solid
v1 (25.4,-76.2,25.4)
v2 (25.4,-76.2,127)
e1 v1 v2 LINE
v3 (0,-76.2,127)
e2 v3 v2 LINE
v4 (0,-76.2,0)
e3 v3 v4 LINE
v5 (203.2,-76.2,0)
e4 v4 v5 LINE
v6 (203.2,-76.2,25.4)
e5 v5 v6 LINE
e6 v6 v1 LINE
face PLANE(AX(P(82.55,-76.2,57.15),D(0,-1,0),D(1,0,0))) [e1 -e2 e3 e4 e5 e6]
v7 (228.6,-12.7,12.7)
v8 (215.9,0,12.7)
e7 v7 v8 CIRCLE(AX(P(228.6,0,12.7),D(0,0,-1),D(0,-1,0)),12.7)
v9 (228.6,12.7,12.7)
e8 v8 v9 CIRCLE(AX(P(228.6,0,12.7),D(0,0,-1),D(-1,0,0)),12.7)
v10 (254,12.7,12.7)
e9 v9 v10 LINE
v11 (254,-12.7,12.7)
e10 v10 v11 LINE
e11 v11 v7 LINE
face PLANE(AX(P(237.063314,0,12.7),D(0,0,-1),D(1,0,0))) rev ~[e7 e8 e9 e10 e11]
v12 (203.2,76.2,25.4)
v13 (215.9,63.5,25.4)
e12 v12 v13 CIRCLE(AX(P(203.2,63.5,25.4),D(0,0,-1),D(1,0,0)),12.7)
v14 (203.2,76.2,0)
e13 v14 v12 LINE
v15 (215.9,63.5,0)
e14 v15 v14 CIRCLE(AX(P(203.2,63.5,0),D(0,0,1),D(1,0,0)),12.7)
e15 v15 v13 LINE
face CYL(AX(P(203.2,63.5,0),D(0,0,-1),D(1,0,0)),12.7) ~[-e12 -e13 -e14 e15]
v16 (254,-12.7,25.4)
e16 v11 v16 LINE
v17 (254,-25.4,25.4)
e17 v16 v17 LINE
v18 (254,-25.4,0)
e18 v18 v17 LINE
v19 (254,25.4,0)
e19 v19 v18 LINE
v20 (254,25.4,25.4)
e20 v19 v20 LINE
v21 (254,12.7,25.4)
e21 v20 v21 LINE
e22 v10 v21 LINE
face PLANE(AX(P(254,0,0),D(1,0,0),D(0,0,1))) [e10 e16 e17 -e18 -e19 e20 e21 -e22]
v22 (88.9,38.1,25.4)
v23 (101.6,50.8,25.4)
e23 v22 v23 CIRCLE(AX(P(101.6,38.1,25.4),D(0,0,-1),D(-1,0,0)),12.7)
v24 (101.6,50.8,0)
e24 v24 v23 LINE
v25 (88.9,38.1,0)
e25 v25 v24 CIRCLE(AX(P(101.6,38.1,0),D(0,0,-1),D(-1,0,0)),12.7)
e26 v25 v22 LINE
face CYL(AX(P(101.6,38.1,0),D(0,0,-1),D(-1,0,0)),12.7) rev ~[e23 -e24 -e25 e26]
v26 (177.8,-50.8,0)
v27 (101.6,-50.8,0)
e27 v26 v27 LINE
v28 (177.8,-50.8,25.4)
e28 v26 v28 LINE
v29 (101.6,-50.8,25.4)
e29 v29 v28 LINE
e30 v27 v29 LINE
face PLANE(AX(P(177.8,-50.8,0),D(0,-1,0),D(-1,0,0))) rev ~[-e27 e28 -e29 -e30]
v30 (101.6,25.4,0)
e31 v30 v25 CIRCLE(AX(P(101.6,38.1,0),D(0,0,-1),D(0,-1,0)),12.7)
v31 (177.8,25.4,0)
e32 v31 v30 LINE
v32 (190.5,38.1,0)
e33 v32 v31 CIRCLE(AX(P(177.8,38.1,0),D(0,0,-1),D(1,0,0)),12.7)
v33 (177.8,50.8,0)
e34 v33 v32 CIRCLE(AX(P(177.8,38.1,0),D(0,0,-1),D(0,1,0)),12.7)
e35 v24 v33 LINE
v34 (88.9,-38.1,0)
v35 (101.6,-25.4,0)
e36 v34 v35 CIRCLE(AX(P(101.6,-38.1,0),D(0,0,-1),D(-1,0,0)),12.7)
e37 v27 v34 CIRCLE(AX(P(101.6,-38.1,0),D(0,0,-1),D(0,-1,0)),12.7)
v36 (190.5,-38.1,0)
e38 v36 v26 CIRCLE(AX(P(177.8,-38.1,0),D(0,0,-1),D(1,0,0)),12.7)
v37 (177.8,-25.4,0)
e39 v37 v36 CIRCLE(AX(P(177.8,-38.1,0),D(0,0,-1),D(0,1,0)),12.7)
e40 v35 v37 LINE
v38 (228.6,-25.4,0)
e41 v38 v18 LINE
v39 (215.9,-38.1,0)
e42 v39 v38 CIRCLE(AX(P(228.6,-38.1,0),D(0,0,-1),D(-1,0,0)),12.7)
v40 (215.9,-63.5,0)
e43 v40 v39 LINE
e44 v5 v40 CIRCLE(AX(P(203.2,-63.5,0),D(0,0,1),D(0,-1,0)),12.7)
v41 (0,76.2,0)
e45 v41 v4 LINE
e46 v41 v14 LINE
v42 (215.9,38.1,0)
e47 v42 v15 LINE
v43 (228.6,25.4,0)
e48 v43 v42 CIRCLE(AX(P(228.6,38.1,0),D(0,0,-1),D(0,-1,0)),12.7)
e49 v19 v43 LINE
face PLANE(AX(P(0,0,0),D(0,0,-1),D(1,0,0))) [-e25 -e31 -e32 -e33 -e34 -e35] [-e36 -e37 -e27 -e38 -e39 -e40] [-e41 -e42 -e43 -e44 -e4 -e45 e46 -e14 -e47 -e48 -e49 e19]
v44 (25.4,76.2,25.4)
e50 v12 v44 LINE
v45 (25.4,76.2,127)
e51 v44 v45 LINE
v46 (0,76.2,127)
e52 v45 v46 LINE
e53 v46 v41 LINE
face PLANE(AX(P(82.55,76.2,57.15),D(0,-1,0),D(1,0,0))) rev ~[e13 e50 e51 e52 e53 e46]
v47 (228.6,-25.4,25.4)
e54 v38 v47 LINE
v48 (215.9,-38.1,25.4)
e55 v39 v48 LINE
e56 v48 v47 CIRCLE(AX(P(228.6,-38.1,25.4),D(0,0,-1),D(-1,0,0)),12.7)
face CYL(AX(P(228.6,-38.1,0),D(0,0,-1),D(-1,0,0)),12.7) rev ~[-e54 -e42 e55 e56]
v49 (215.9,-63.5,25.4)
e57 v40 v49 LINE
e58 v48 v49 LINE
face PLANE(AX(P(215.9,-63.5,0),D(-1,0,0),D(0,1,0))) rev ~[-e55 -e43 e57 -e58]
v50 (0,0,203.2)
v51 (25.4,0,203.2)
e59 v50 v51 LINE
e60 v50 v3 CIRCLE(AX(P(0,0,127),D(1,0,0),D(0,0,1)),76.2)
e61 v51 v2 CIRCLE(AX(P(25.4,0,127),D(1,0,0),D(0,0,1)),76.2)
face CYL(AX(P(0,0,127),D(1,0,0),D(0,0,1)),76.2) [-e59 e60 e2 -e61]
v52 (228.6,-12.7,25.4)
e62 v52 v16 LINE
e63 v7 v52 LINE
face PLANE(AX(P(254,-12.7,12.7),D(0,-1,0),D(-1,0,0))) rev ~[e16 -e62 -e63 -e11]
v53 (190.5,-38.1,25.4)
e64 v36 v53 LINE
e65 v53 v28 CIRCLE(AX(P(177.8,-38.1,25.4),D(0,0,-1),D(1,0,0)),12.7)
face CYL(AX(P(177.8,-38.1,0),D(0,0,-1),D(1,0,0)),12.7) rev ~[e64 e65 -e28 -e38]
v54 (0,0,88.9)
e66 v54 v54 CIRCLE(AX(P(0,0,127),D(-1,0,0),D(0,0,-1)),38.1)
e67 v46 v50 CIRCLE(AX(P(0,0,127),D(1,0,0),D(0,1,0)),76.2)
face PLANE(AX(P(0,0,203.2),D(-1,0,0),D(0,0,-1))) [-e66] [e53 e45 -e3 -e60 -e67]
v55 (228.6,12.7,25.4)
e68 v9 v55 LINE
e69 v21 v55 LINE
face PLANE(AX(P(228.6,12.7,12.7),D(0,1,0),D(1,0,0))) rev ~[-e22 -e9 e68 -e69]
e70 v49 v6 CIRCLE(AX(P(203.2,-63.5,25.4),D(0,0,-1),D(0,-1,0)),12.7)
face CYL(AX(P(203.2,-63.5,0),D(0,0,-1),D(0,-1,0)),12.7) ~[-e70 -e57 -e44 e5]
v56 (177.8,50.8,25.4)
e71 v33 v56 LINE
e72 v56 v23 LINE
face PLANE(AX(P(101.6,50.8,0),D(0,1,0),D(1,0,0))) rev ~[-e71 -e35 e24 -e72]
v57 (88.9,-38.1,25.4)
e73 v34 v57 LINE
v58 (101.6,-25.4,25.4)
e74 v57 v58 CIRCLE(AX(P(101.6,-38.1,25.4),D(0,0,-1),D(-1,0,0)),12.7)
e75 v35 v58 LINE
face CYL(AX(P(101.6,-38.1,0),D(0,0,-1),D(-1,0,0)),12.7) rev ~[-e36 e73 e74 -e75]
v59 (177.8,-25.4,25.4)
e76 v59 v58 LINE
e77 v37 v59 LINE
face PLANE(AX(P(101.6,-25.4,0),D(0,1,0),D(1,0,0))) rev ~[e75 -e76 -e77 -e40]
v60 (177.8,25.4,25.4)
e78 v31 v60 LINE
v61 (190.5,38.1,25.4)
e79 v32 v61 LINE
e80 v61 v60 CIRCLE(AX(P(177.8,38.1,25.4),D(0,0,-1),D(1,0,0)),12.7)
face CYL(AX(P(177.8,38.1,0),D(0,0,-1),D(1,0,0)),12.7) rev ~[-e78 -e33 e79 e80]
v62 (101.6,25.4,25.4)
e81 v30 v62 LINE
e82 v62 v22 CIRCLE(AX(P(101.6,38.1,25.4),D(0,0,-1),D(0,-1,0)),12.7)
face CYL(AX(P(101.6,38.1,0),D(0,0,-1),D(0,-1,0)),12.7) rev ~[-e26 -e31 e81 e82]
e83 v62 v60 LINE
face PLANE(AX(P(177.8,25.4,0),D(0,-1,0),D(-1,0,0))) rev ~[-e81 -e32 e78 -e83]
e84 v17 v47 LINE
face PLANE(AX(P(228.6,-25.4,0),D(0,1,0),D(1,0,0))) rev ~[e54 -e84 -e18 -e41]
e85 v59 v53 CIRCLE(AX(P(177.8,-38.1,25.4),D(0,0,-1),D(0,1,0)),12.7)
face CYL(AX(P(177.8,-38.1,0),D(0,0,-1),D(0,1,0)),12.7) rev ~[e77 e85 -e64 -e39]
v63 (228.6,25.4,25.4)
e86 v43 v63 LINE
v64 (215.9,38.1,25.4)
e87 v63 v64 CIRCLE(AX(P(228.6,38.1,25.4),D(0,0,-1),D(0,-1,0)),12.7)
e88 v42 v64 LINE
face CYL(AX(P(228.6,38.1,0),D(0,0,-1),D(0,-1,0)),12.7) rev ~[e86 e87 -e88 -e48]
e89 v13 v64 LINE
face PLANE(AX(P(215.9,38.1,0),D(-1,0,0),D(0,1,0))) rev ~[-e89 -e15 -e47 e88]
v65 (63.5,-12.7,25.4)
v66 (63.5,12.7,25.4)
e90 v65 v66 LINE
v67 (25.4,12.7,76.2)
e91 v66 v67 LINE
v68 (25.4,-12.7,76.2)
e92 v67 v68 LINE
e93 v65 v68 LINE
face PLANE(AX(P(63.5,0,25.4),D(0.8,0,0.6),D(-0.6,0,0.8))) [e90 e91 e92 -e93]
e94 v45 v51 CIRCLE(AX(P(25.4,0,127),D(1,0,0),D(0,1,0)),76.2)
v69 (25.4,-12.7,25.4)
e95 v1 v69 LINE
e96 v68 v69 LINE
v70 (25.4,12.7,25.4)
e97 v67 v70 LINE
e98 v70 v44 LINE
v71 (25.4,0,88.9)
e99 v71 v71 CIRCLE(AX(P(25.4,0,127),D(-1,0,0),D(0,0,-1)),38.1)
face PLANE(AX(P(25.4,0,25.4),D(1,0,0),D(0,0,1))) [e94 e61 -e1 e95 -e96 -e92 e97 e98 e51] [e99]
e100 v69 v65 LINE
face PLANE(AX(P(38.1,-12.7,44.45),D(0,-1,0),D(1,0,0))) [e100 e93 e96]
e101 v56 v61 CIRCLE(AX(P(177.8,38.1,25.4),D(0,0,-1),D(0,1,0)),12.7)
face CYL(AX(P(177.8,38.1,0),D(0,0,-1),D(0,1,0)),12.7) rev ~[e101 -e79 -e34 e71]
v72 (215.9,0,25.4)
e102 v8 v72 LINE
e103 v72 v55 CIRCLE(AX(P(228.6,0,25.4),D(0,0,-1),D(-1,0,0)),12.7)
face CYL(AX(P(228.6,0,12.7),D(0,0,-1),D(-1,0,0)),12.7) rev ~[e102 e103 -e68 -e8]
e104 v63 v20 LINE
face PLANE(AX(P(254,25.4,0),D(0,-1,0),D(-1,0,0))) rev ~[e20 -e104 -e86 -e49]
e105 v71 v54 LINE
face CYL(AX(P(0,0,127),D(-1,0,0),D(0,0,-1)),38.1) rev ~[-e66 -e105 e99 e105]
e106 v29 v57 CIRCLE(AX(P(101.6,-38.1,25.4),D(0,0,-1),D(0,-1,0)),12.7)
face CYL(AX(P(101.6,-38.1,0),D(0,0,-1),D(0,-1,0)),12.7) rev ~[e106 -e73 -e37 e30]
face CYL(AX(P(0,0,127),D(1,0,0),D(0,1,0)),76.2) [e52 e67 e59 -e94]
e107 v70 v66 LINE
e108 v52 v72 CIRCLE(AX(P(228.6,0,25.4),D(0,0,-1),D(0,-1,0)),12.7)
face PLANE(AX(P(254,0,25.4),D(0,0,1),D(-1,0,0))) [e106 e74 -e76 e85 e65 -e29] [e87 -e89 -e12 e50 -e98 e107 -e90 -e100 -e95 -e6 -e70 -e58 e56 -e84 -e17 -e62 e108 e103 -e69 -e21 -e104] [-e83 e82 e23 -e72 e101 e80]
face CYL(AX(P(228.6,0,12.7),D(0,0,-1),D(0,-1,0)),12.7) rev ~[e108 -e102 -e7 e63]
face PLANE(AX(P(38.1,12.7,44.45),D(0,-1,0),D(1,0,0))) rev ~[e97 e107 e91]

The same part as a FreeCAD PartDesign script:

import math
import FreeCAD as App
import Part
import Sketcher

V = App.Vector
Q = App.Units.Quantity

doc = App.newDocument("Part")
params = doc.addObject("Spreadsheet::Sheet", "Params")
for row, (alias, value) in enumerate([
    ("sketch1_width", "10 in"),
    ("sketch1_width2", "9 in"),
    ("sketch1_height", "8 in"),
    ("pad1_length", "6 in"),
    ("sketch2_height", "2 in"),
    ("sketch2_width", "1.5 in"),
    ("pad2_length", "1 in"),
    ("sketch3_diameter", "3 in"),
    ("sketch3_radius", "3 in"),
    ("pocket1_length", "100 in"),
    ("sketch4_radius", "0.5 in"),
    ("sketch4_width", "1 in"),
    ("sketch4_width2", "3 in"),
    ("pocket2_length", "2.78 in"),
    ("sketch5_radius", "0.5 in"),
    ("pocket3_length", "1.71 in"),
], start=1):
    params.set(f"A{row}", alias)
    params.set(f"B{row}", "=" + value)
    params.setAlias(f"B{row}", alias)

body = doc.addObject("PartDesign::Body", "Body")

sketch1 = body.newObject("Sketcher::SketchObject", "Sketch")
sketch1.AttachmentSupport = (doc.getObject("XZ_Plane"), [""])
sketch1.MapMode = "FlatFace"
sketch1.addGeometry(Part.LineSegment(V(0, 203, 0), V(0, 0, 0)), False)
sketch1.addGeometry(Part.LineSegment(V(0, 0, 0), V(254, 0, 0)), False)
sketch1.addGeometry(Part.LineSegment(V(254, 0, 0), V(254, 25, 0)), False)
sketch1.addGeometry(Part.LineSegment(V(254, 25, 0), V(25, 25, 0)), False)
sketch1.addGeometry(Part.LineSegment(V(25, 25, 0), V(25, 203, 0)), False)
sketch1.addGeometry(Part.LineSegment(V(25, 203, 0), V(0, 203, 0)), False)
sketch1.addConstraint(Sketcher.Constraint("Coincident", 0, 2, 1, 1))
sketch1.addConstraint(Sketcher.Constraint("Coincident", 1, 2, 2, 1))
sketch1.addConstraint(Sketcher.Constraint("Coincident", 2, 2, 3, 1))
sketch1.addConstraint(Sketcher.Constraint("Coincident", 3, 2, 4, 1))
sketch1.addConstraint(Sketcher.Constraint("Coincident", 4, 2, 5, 1))
sketch1.addConstraint(Sketcher.Constraint("Coincident", 5, 2, 0, 1))
sketch1.addConstraint(Sketcher.Constraint("Vertical", 0))
sketch1.addConstraint(Sketcher.Constraint("Horizontal", 1))
sketch1.addConstraint(Sketcher.Constraint("Vertical", 2))
sketch1.addConstraint(Sketcher.Constraint("Horizontal", 3))
sketch1.addConstraint(Sketcher.Constraint("Vertical", 4))
sketch1.addConstraint(Sketcher.Constraint("Horizontal", 5))
sketch1.addConstraint(Sketcher.Constraint("Coincident", 0, 2, -1, 1))
sketch1.addConstraint(Sketcher.Constraint("Equal", 5, 2))
sketch1.addConstraint(Sketcher.Constraint("DistanceX", 1, 1, 1, 2, Q("10 in")))
sketch1.addConstraint(Sketcher.Constraint("DistanceX", 3, 2, 3, 1, Q("9 in")))
sketch1.addConstraint(Sketcher.Constraint("DistanceY", 0, 2, 0, 1, Q("8 in")))
sketch1.setExpression("Constraints[14]", "Params.sketch1_width")
sketch1.setExpression("Constraints[15]", "Params.sketch1_width2")
sketch1.setExpression("Constraints[16]", "Params.sketch1_height")
pad1 = body.newObject("PartDesign::Pad", "Pad")
pad1.Profile = sketch1
pad1.setExpression("Length", "Params.pad1_length")
pad1.Midplane = True

sketch2 = body.newObject("Sketcher::SketchObject", "Sketch001")
sketch2.AttachmentSupport = (doc.getObject("XZ_Plane"), [""])
sketch2.MapMode = "FlatFace"
sketch2.addGeometry(Part.LineSegment(V(64, 25, 0), V(25, 76, 0)), False)
sketch2.addGeometry(Part.LineSegment(V(25, 76, 0), V(25, 25, 0)), False)
sketch2.addGeometry(Part.LineSegment(V(25, 25, 0), V(64, 25, 0)), False)
sketch2.addConstraint(Sketcher.Constraint("Coincident", 0, 2, 1, 1))
sketch2.addConstraint(Sketcher.Constraint("Coincident", 1, 2, 2, 1))
sketch2.addConstraint(Sketcher.Constraint("Coincident", 2, 2, 0, 1))
sketch2.addConstraint(Sketcher.Constraint("Vertical", 1))
sketch2.addConstraint(Sketcher.Constraint("Horizontal", 2))
sketch2.addConstraint(Sketcher.Constraint("DistanceY", 1, 2, 1, 1, Q("2 in")))
sketch2.addConstraint(Sketcher.Constraint("DistanceX", 2, 1, 2, 2, Q("1.5 in")))
sketch2.addConstraint(Sketcher.Constraint("DistanceX", -1, 1, 0, 2, Q("1 in")))
sketch2.addConstraint(Sketcher.Constraint("DistanceY", -1, 1, 0, 2, Q("3 in")))
sketch2.setExpression("Constraints[5]", "Params.sketch2_height")
sketch2.setExpression("Constraints[6]", "Params.sketch2_width")
pad2 = body.newObject("PartDesign::Pad", "Pad001")
pad2.Profile = sketch2
pad2.setExpression("Length", "Params.pad2_length")
pad2.Midplane = True

sketch3 = body.newObject("Sketcher::SketchObject", "Sketch002")
sketch3.AttachmentSupport = (doc.getObject("YZ_Plane"), [""])
sketch3.MapMode = "FlatFace"
sketch3.addGeometry(Part.LineSegment(V(76, 203, 0), V(76, 127, 0)), False)
sketch3.addGeometry(Part.ArcOfCircle(Part.Circle(V(0, 127, 0), V(0, 0, 1), 76), math.radians(0), math.radians(90)), False)
sketch3.addGeometry(Part.LineSegment(V(0, 203, 0), V(76, 203, 0)), False)
sketch3.addGeometry(Part.LineSegment(V(-76, 203, 0), V(0, 203, 0)), False)
sketch3.addGeometry(Part.ArcOfCircle(Part.Circle(V(0, 127, 0), V(0, 0, 1), 76), math.radians(90), math.radians(180)), False)
sketch3.addGeometry(Part.LineSegment(V(-76, 127, 0), V(-76, 203, 0)), False)
sketch3.addGeometry(Part.Circle(V(0, 127, 0), V(0, 0, 1), 38), False)
sketch3.addConstraint(Sketcher.Constraint("Tangent", 0, 2, 1, 1))
sketch3.addConstraint(Sketcher.Constraint("Tangent", 1, 2, 2, 1))
sketch3.addConstraint(Sketcher.Constraint("Coincident", 2, 2, 0, 1))
sketch3.addConstraint(Sketcher.Constraint("Tangent", 3, 2, 4, 1))
sketch3.addConstraint(Sketcher.Constraint("Tangent", 4, 2, 5, 1))
sketch3.addConstraint(Sketcher.Constraint("Coincident", 5, 2, 3, 1))
sketch3.addConstraint(Sketcher.Constraint("Vertical", 0))
sketch3.addConstraint(Sketcher.Constraint("Horizontal", 2))
sketch3.addConstraint(Sketcher.Constraint("Horizontal", 3))
sketch3.addConstraint(Sketcher.Constraint("Vertical", 5))
sketch3.addConstraint(Sketcher.Constraint("Coincident", 4, 3, 1, 3))
sketch3.addConstraint(Sketcher.Constraint("Coincident", 6, 3, 1, 3))
sketch3.addConstraint(Sketcher.Constraint("Equal", 1, 4))
sketch3.addConstraint(Sketcher.Constraint("PointOnObject", 1, 3, -2))
sketch3.addConstraint(Sketcher.Constraint("Diameter", 6, Q("3 in")))
sketch3.addConstraint(Sketcher.Constraint("Radius", 1, Q("3 in")))
sketch3.addConstraint(Sketcher.Constraint("DistanceY", -1, 1, 1, 3, Q("5 in")))
sketch3.setExpression("Constraints[14]", "Params.sketch3_diameter")
sketch3.setExpression("Constraints[15]", "Params.sketch3_radius")
pocket1 = body.newObject("PartDesign::Pocket", "Pocket")
pocket1.Profile = sketch3
pocket1.setExpression("Length", "Params.pocket1_length")
pocket1.Midplane = True

sketch4 = body.newObject("Sketcher::SketchObject", "Sketch003")
sketch4.AttachmentSupport = (doc.getObject("XY_Plane"), [""])
sketch4.MapMode = "FlatFace"
sketch4.addGeometry(Part.ArcOfCircle(Part.Circle(V(203, -64, 0), V(0, 0, 1), 13), math.radians(-90), math.radians(0)), False)
sketch4.addGeometry(Part.LineSegment(V(216, -64, 0), V(216, -38, 0)), False)
sketch4.addGeometry(Part.ArcOfCircle(Part.Circle(V(229, -38, 0), V(0, 0, 1), 13), math.radians(90), math.radians(180)), False)
sketch4.addGeometry(Part.LineSegment(V(229, -25, 0), V(254, -25, 0)), False)
sketch4.addGeometry(Part.LineSegment(V(254, -25, 0), V(254, -76, 0)), False)
sketch4.addGeometry(Part.LineSegment(V(254, -76, 0), V(203, -76, 0)), False)
sketch4.addGeometry(Part.ArcOfCircle(Part.Circle(V(102, -38, 0), V(0, 0, 1), 13), math.radians(90), math.radians(180)), False)
sketch4.addGeometry(Part.LineSegment(V(102, -25, 0), V(178, -25, 0)), False)
sketch4.addGeometry(Part.ArcOfCircle(Part.Circle(V(178, -38, 0), V(0, 0, 1), 13), math.radians(0), math.radians(90)), False)
sketch4.addGeometry(Part.ArcOfCircle(Part.Circle(V(178, -38, 0), V(0, 0, 1), 13), math.radians(-90), math.radians(0)), False)
sketch4.addGeometry(Part.LineSegment(V(178, -51, 0), V(102, -51, 0)), False)
sketch4.addGeometry(Part.ArcOfCircle(Part.Circle(V(102, -38, 0), V(0, 0, 1), 13), math.radians(180), math.radians(270)), False)
sketch4.addGeometry(Part.ArcOfCircle(Part.Circle(V(102, 38, 0), V(0, 0, 1), 13), math.radians(180), math.radians(270)), False)
sketch4.addGeometry(Part.ArcOfCircle(Part.Circle(V(102, 38, 0), V(0, 0, 1), 13), math.radians(90), math.radians(180)), False)
sketch4.addGeometry(Part.LineSegment(V(102, 51, 0), V(178, 51, 0)), False)
sketch4.addGeometry(Part.ArcOfCircle(Part.Circle(V(178, 38, 0), V(0, 0, 1), 13), math.radians(0), math.radians(90)), False)
sketch4.addGeometry(Part.ArcOfCircle(Part.Circle(V(178, 38, 0), V(0, 0, 1), 13), math.radians(-90), math.radians(0)), False)
sketch4.addGeometry(Part.LineSegment(V(178, 25, 0), V(102, 25, 0)), False)
sketch4.addGeometry(Part.LineSegment(V(254, 25, 0), V(229, 25, 0)), False)
sketch4.addGeometry(Part.ArcOfCircle(Part.Circle(V(229, 38, 0), V(0, 0, 1), 13), math.radians(180), math.radians(270)), False)
sketch4.addGeometry(Part.LineSegment(V(216, 38, 0), V(216, 64, 0)), False)
sketch4.addGeometry(Part.ArcOfCircle(Part.Circle(V(203, 64, 0), V(0, 0, 1), 13), math.radians(0), math.radians(90)), False)
sketch4.addGeometry(Part.LineSegment(V(203, 76, 0), V(254, 76, 0)), False)
sketch4.addGeometry(Part.LineSegment(V(254, 76, 0), V(254, 25, 0)), False)
sketch4.addConstraint(Sketcher.Constraint("Tangent", 0, 2, 1, 1))
sketch4.addConstraint(Sketcher.Constraint("Tangent", 1, 2, 2, 2))
sketch4.addConstraint(Sketcher.Constraint("Tangent", 2, 1, 3, 1))
sketch4.addConstraint(Sketcher.Constraint("Coincident", 3, 2, 4, 1))
sketch4.addConstraint(Sketcher.Constraint("Coincident", 4, 2, 5, 1))
sketch4.addConstraint(Sketcher.Constraint("Tangent", 5, 2, 0, 1))
sketch4.addConstraint(Sketcher.Constraint("Tangent", 6, 1, 7, 1))
sketch4.addConstraint(Sketcher.Constraint("Tangent", 7, 2, 8, 2))
sketch4.addConstraint(Sketcher.Constraint("Tangent", 8, 1, 9, 2))
sketch4.addConstraint(Sketcher.Constraint("Tangent", 9, 1, 10, 1))
sketch4.addConstraint(Sketcher.Constraint("Tangent", 10, 2, 11, 2))
sketch4.addConstraint(Sketcher.Constraint("Tangent", 11, 1, 6, 2))
sketch4.addConstraint(Sketcher.Constraint("Tangent", 12, 1, 13, 2))
sketch4.addConstraint(Sketcher.Constraint("Tangent", 13, 1, 14, 1))
sketch4.addConstraint(Sketcher.Constraint("Tangent", 14, 2, 15, 2))
sketch4.addConstraint(Sketcher.Constraint("Tangent", 15, 1, 16, 2))
sketch4.addConstraint(Sketcher.Constraint("Tangent", 16, 1, 17, 1))
sketch4.addConstraint(Sketcher.Constraint("Tangent", 17, 2, 12, 2))
sketch4.addConstraint(Sketcher.Constraint("Tangent", 18, 2, 19, 2))
sketch4.addConstraint(Sketcher.Constraint("Tangent", 19, 1, 20, 1))
sketch4.addConstraint(Sketcher.Constraint("Tangent", 20, 2, 21, 1))
sketch4.addConstraint(Sketcher.Constraint("Tangent", 21, 2, 22, 1))
sketch4.addConstraint(Sketcher.Constraint("Coincident", 22, 2, 23, 1))
sketch4.addConstraint(Sketcher.Constraint("Coincident", 23, 2, 18, 1))
sketch4.addConstraint(Sketcher.Constraint("Vertical", 1))
sketch4.addConstraint(Sketcher.Constraint("Horizontal", 3))
sketch4.addConstraint(Sketcher.Constraint("Vertical", 4))
sketch4.addConstraint(Sketcher.Constraint("Horizontal", 5))
sketch4.addConstraint(Sketcher.Constraint("Horizontal", 7))
sketch4.addConstraint(Sketcher.Constraint("Horizontal", 10))
sketch4.addConstraint(Sketcher.Constraint("Horizontal", 14))
sketch4.addConstraint(Sketcher.Constraint("Horizontal", 17))
sketch4.addConstraint(Sketcher.Constraint("Horizontal", 18))
sketch4.addConstraint(Sketcher.Constraint("Vertical", 20))
sketch4.addConstraint(Sketcher.Constraint("Horizontal", 22))
sketch4.addConstraint(Sketcher.Constraint("Vertical", 23))
sketch4.addConstraint(Sketcher.Constraint("Equal", 0, 2))
sketch4.addConstraint(Sketcher.Constraint("Equal", 2, 6))
sketch4.addConstraint(Sketcher.Constraint("Equal", 6, 8))
sketch4.addConstraint(Sketcher.Constraint("Equal", 8, 9))
sketch4.addConstraint(Sketcher.Constraint("Equal", 11, 12))
sketch4.addConstraint(Sketcher.Constraint("Equal", 12, 13))
sketch4.addConstraint(Sketcher.Constraint("Equal", 13, 15))
sketch4.addConstraint(Sketcher.Constraint("Equal", 16, 19))
sketch4.addConstraint(Sketcher.Constraint("Equal", 19, 21))
sketch4.addConstraint(Sketcher.Constraint("Symmetric", 6, 3, 12, 3, -1))
sketch4.addConstraint(Sketcher.Constraint("Symmetric", 2, 3, 19, 3, -1))
sketch4.addConstraint(Sketcher.Constraint("Symmetric", 8, 1, 15, 1, -1))
sketch4.addConstraint(Sketcher.Constraint("Symmetric", 4, 2, 22, 2, -1))
sketch4.addConstraint(Sketcher.Constraint("Horizontal", 2, 3, 6, 3))
sketch4.addConstraint(Sketcher.Constraint("Horizontal", 1, 2, 8, 1))
sketch4.addConstraint(Sketcher.Constraint("Horizontal", 8, 1, 11, 1))
sketch4.addConstraint(Sketcher.Constraint("Horizontal", 19, 3, 12, 1))
sketch4.addConstraint(Sketcher.Constraint("Equal", 18, 1))
sketch4.addConstraint(Sketcher.Constraint("Radius", 0, Q("0.5 in")))
sketch4.addConstraint(Sketcher.Constraint("DistanceX", 3, 1, 3, 2, Q("1 in")))
sketch4.addConstraint(Sketcher.Constraint("DistanceX", 7, 1, 7, 2, Q("3 in")))
sketch4.addConstraint(Sketcher.Constraint("DistanceX", -1, 1, 0, 3, Q("8 in")))
sketch4.addConstraint(Sketcher.Constraint("DistanceX", -1, 1, 6, 3, Q("4 in")))
sketch4.addConstraint(Sketcher.Constraint("DistanceY", 2, 1, -1, 1, Q("1 in")))
sketch4.setExpression("Constraints[54]", "Params.sketch4_radius")
sketch4.setExpression("Constraints[55]", "Params.sketch4_width")
sketch4.setExpression("Constraints[56]", "Params.sketch4_width2")
pocket2 = body.newObject("PartDesign::Pocket", "Pocket001")
pocket2.Profile = sketch4
pocket2.setExpression("Length", "Params.pocket2_length")
pocket2.Reversed = True

sketch5 = body.newObject("Sketcher::SketchObject", "Sketch004")
sketch5.AttachmentSupport = (doc.getObject("XY_Plane"), [""])
sketch5.MapMode = "FlatFace"
sketch5.AttachmentOffset = App.Placement(V(0, 0, 0.5 * 25.4), App.Rotation())
sketch5.addGeometry(Part.LineSegment(V(254, -13, 0), V(229, -13, 0)), False)
sketch5.addGeometry(Part.ArcOfCircle(Part.Circle(V(229, 0, 0), V(0, 0, 1), 13), math.radians(180), math.radians(270)), False)
sketch5.addGeometry(Part.ArcOfCircle(Part.Circle(V(229, 0, 0), V(0, 0, 1), 13), math.radians(90), math.radians(180)), False)
sketch5.addGeometry(Part.LineSegment(V(229, 13, 0), V(254, 13, 0)), False)
sketch5.addGeometry(Part.LineSegment(V(254, 13, 0), V(254, -13, 0)), False)
sketch5.addConstraint(Sketcher.Constraint("Tangent", 0, 2, 1, 2))
sketch5.addConstraint(Sketcher.Constraint("Tangent", 1, 1, 2, 2))
sketch5.addConstraint(Sketcher.Constraint("Tangent", 2, 1, 3, 1))
sketch5.addConstraint(Sketcher.Constraint("Coincident", 3, 2, 4, 1))
sketch5.addConstraint(Sketcher.Constraint("Coincident", 4, 2, 0, 1))
sketch5.addConstraint(Sketcher.Constraint("Horizontal", 0))
sketch5.addConstraint(Sketcher.Constraint("Horizontal", 3))
sketch5.addConstraint(Sketcher.Constraint("Vertical", 4))
sketch5.addConstraint(Sketcher.Constraint("Equal", 1, 2))
sketch5.addConstraint(Sketcher.Constraint("PointOnObject", 1, 3, -1))
sketch5.addConstraint(Sketcher.Constraint("PointOnObject", 1, 1, -1))
sketch5.addConstraint(Sketcher.Constraint("Equal", 3, 4))
sketch5.addConstraint(Sketcher.Constraint("Radius", 1, Q("0.5 in")))
sketch5.addConstraint(Sketcher.Constraint("DistanceX", -1, 1, 1, 3, Q("9 in")))
sketch5.setExpression("Constraints[12]", "Params.sketch5_radius")
pocket3 = body.newObject("PartDesign::Pocket", "Pocket002")
pocket3.Profile = sketch5
pocket3.setExpression("Length", "Params.pocket3_length")
pocket3.Reversed = True

doc.recompute()
